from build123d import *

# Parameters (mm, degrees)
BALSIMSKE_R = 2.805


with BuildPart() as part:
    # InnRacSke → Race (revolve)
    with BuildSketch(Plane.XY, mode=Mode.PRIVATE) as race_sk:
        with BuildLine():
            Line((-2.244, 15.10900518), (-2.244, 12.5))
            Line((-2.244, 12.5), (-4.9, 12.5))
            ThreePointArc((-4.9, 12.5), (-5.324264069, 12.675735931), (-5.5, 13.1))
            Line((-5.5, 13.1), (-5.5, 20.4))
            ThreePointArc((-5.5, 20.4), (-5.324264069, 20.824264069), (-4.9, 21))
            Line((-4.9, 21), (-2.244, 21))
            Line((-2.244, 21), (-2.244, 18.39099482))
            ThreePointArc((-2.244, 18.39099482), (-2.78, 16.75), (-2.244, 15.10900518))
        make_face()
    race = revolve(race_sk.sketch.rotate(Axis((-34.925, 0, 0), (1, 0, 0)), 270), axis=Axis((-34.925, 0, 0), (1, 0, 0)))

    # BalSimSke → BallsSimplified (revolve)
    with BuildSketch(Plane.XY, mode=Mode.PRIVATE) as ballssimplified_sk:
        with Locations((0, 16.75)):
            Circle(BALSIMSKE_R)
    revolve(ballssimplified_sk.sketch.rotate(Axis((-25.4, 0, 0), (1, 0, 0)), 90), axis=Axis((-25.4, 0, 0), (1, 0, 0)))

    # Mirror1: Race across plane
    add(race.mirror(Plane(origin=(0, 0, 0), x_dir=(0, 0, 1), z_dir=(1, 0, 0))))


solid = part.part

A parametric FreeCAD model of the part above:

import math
import FreeCAD as App
import Part
import Sketcher

V = App.Vector

doc = App.newDocument("Part")
body = doc.addObject("PartDesign::Body", "Body")

# Sketch on XY plane
sketch1 = body.newObject("Sketcher::SketchObject", "Sketch")
sketch1.AttachmentSupport = (doc.getObject("XY_Plane"), [""])
sketch1.MapMode = "FlatFace"
sketch1.addGeometry(Part.LineSegment(V(-2.2, 12.5, 0), V(-2.2, 15.1, 0)), False)
sketch1.addGeometry(Part.ArcOfCircle(Part.Circle(V(0, 16.8, 0), V(0, 0, 1), 2.8), math.radians(144), math.radians(216)), False)
sketch1.addGeometry(Part.LineSegment(V(-2.2, 18.4, 0), V(-2.2, 21, 0)), False)
sketch1.addGeometry(Part.LineSegment(V(-2.2, 21, 0), V(-4.9, 21, 0)), False)
sketch1.addGeometry(Part.ArcOfCircle(Part.Circle(V(-4.9, 20.4, 0), V(0, 0, 1), 0.6), math.radians(90), math.radians(180)), False)
sketch1.addGeometry(Part.LineSegment(V(-5.5, 20.4, 0), V(-5.5, 13.1, 0)), False)
sketch1.addGeometry(Part.ArcOfCircle(Part.Circle(V(-4.9, 13.1, 0), V(0, 0, 1), 0.6), math.radians(180), math.radians(270)), False)
sketch1.addGeometry(Part.LineSegment(V(-4.9, 12.5, 0), V(-2.2, 12.5, 0)), False)
sketch1.addConstraint(Sketcher.Constraint("Coincident", 0, 2, 1, 2))
sketch1.addConstraint(Sketcher.Constraint("Coincident", 1, 1, 2, 1))
sketch1.addConstraint(Sketcher.Constraint("Coincident", 2, 2, 3, 1))
sketch1.addConstraint(Sketcher.Constraint("Tangent", 3, 2, 4, 1))
sketch1.addConstraint(Sketcher.Constraint("Tangent", 4, 2, 5, 1))
sketch1.addConstraint(Sketcher.Constraint("Tangent", 5, 2, 6, 1))
sketch1.addConstraint(Sketcher.Constraint("Tangent", 6, 2, 7, 1))
sketch1.addConstraint(Sketcher.Constraint("Coincident", 7, 2, 0, 1))
sketch1.addConstraint(Sketcher.Constraint("Vertical", 0))
sketch1.addConstraint(Sketcher.Constraint("Vertical", 2))
sketch1.addConstraint(Sketcher.Constraint("Horizontal", 3))
sketch1.addConstraint(Sketcher.Constraint("Vertical", 5))
sketch1.addConstraint(Sketcher.Constraint("Horizontal", 7))
sketch1.addConstraint(Sketcher.Constraint("Equal", 4, 6))
sketch1.addConstraint(Sketcher.Constraint("PointOnObject", 1, 3, -2))
sketch1.addConstraint(Sketcher.Constraint("Vertical", 0, 2, 1, 1))
sketch1.addConstraint(Sketcher.Constraint("Equal", 0, 2))
sketch1.addConstraint(Sketcher.Constraint("Radius", 4, 0.6))
sketch1.addConstraint(Sketcher.Constraint("Radius", 1, 2.78))
sketch1.addConstraint(Sketcher.Constraint("DistanceY", 5, 2, 5, 1, 7.3))
sketch1.addConstraint(Sketcher.Constraint("DistanceY", -1, 1, 2, 2, 21.0))
sketch1.addConstraint(Sketcher.Constraint("DistanceX", 4, 3, -1, 1, 4.9))
sketch1.addConstraint(Sketcher.Constraint("DistanceX", 3, 2, 3, 1, 2.656))
revolution = body.newObject("PartDesign::Revolution", "Revolution")
revolution.Profile = sketch1
revolution.ReferenceAxis = (sketch1, ["H_Axis"])
revolution.Angle = 360

# Sketch on XY plane
sketch2 = body.newObject("Sketcher::SketchObject", "Sketch001")
sketch2.AttachmentSupport = (doc.getObject("XY_Plane"), [""])
sketch2.MapMode = "FlatFace"
sketch2.addGeometry(Part.Circle(V(0, 16.8, 0), V(0, 0, 1), 2.8), False)
sketch2.addConstraint(Sketcher.Constraint("PointOnObject", 0, 3, -2))
sketch2.addConstraint(Sketcher.Constraint("Diameter", 0, 5.61))
sketch2.addConstraint(Sketcher.Constraint("DistanceY", -1, 1, 0, 3, 16.75))
revolution2 = body.newObject("PartDesign::Revolution", "Revolution001")
revolution2.Profile = sketch2
revolution2.ReferenceAxis = (sketch2, ["H_Axis"])
revolution2.Angle = 360
doc.recompute()

mirrored = body.newObject("PartDesign::Mirrored", "Mirrored")
mirrored.Originals = [revolution]
mirrored.MirrorPlane = (doc.getObject("YZ_Plane"), [""])
body.Tip = mirrored

doc.recompute()
